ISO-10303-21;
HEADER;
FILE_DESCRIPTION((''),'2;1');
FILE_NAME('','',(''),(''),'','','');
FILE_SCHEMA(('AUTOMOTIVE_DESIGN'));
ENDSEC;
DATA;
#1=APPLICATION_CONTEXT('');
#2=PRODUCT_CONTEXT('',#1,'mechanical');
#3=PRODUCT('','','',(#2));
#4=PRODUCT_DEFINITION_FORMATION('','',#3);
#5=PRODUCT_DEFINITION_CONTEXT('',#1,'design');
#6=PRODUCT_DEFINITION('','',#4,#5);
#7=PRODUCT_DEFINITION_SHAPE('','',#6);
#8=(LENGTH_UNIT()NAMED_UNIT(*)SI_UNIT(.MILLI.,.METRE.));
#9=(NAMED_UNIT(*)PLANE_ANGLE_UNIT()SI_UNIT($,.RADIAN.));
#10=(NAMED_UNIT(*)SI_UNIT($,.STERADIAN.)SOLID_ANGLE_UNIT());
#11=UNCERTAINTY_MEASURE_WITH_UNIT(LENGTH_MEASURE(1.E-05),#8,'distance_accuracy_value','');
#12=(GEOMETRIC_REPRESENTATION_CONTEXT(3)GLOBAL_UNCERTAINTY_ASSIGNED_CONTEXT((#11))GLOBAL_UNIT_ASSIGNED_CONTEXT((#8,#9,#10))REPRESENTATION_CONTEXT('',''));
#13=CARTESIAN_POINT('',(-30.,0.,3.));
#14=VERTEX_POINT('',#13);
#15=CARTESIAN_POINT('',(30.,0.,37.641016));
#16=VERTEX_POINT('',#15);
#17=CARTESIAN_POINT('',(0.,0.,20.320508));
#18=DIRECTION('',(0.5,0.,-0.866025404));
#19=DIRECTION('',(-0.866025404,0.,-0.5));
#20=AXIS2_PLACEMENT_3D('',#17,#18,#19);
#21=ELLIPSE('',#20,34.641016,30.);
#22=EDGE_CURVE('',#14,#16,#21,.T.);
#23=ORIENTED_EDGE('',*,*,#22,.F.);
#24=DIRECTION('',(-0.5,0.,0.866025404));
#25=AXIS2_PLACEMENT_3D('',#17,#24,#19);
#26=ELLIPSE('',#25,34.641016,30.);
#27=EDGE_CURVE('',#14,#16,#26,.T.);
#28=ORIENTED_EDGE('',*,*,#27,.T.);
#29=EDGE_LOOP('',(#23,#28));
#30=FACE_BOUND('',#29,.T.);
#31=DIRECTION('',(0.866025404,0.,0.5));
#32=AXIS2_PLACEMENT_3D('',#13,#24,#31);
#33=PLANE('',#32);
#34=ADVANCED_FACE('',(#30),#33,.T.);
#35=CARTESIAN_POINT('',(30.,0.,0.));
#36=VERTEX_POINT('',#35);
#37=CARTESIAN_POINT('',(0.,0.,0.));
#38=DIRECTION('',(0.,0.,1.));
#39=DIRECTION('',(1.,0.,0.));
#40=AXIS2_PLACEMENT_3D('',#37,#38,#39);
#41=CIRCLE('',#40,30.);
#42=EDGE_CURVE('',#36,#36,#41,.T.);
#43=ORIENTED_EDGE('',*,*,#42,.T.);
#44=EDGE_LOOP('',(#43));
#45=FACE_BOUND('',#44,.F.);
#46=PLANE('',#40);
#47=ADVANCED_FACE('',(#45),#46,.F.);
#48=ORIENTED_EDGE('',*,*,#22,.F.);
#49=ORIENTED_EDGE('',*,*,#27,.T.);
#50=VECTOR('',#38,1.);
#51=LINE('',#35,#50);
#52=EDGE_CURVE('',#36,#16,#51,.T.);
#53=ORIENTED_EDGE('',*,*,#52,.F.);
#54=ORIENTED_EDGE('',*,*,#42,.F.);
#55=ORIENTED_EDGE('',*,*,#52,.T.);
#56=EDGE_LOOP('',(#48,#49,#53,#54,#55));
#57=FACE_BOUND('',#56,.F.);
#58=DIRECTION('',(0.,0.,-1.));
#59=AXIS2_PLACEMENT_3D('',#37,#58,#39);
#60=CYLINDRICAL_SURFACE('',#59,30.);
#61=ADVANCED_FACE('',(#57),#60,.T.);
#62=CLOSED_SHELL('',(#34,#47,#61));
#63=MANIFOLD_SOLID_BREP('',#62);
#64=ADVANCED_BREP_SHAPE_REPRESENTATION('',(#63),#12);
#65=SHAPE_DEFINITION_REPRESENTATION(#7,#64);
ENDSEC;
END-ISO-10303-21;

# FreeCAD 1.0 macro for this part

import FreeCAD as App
import Part
import Sketcher
from FreeCAD import Vector
Q = App.Units.Quantity

doc = App.newDocument("Part")
body = doc.addObject("PartDesign::Body", "Body")

sketch1 = body.newObject("Sketcher::SketchObject", "Sketch")
sketch1.AttachmentSupport = (doc.getObject("XY_Plane"), [""])
sketch1.MapMode = "FlatFace"
sketch1.addGeometry(Part.Circle(Vector(0, 0, 0), Vector(0, 0, 1), 30), False)
sketch1.addConstraint(Sketcher.Constraint("Coincident", 0, 3, -1, 1))
sketch1.addConstraint(Sketcher.Constraint("Diameter", 0, Q("60 mm")))
pad1 = body.newObject("PartDesign::Pad", "Pad")
pad1.Profile = sketch1
pad1.Length = 40

sketch2 = body.newObject("Sketcher::SketchObject", "Sketch001")
sketch2.AttachmentSupport = (doc.getObject("XZ_Plane"), [""])
sketch2.MapMode = "FlatFace"
sketch2.addGeometry(Part.LineSegment(Vector(-35, 3, 0), Vector(-30, 3, 0)), False)
sketch2.addGeometry(Part.LineSegment(Vector(-30, 3, 0), Vector(30, 38, 0)), False)
sketch2.addGeometry(Part.LineSegment(Vector(30, 38, 0), Vector(35, 38, 0)), False)
sketch2.addGeometry(Part.LineSegment(Vector(35, 38, 0), Vector(35, 51, 0)), False)
sketch2.addGeometry(Part.LineSegment(Vector(35, 51, 0), Vector(-35, 51, 0)), False)
sketch2.addGeometry(Part.LineSegment(Vector(-35, 51, 0), Vector(-35, 3, 0)), False)
sketch2.addConstraint(Sketcher.Constraint("Coincident", 0, 2, 1, 1))
sketch2.addConstraint(Sketcher.Constraint("Coincident", 1, 2, 2, 1))
sketch2.addConstraint(Sketcher.Constraint("Coincident", 2, 2, 3, 1))
sketch2.addConstraint(Sketcher.Constraint("Coincident", 3, 2, 4, 1))
sketch2.addConstraint(Sketcher.Constraint("Coincident", 4, 2, 5, 1))
sketch2.addConstraint(Sketcher.Constraint("Coincident", 5, 2, 0, 1))
sketch2.addConstraint(Sketcher.Constraint("Horizontal", 0))
sketch2.addConstraint(Sketcher.Constraint("Horizontal", 2))
sketch2.addConstraint(Sketcher.Constraint("Vertical", 3))
sketch2.addConstraint(Sketcher.Constraint("Horizontal", 4))
sketch2.addConstraint(Sketcher.Constraint("Vertical", 5))
sketch2.addConstraint(Sketcher.Constraint("Angle", 1, Q("30 deg")))
sketch2.addConstraint(Sketcher.Constraint("DistanceX", 0, 2, -1, 1, Q("30 mm")))
sketch2.addConstraint(Sketcher.Constraint("DistanceY", -1, 1, 0, 2, Q("3 mm")))
sketch2.addConstraint(Sketcher.Constraint("DistanceX", -1, 1, 1, 2, Q("30 mm")))
sketch2.addConstraint(Sketcher.Constraint("DistanceX", 0, 1, 0, 2, Q("5.124749 mm")))
sketch2.addConstraint(Sketcher.Constraint("DistanceX", 2, 1, 2, 2, Q("5.445519 mm")))
sketch2.addConstraint(Sketcher.Constraint("DistanceY", 3, 1, 3, 2, Q("13.041268 mm")))
pocket1 = body.newObject("PartDesign::Pocket", "Pocket")
pocket1.Profile = sketch2
pocket1.Type = "ThroughAll"
pocket1.Midplane = True

doc.recompute()
